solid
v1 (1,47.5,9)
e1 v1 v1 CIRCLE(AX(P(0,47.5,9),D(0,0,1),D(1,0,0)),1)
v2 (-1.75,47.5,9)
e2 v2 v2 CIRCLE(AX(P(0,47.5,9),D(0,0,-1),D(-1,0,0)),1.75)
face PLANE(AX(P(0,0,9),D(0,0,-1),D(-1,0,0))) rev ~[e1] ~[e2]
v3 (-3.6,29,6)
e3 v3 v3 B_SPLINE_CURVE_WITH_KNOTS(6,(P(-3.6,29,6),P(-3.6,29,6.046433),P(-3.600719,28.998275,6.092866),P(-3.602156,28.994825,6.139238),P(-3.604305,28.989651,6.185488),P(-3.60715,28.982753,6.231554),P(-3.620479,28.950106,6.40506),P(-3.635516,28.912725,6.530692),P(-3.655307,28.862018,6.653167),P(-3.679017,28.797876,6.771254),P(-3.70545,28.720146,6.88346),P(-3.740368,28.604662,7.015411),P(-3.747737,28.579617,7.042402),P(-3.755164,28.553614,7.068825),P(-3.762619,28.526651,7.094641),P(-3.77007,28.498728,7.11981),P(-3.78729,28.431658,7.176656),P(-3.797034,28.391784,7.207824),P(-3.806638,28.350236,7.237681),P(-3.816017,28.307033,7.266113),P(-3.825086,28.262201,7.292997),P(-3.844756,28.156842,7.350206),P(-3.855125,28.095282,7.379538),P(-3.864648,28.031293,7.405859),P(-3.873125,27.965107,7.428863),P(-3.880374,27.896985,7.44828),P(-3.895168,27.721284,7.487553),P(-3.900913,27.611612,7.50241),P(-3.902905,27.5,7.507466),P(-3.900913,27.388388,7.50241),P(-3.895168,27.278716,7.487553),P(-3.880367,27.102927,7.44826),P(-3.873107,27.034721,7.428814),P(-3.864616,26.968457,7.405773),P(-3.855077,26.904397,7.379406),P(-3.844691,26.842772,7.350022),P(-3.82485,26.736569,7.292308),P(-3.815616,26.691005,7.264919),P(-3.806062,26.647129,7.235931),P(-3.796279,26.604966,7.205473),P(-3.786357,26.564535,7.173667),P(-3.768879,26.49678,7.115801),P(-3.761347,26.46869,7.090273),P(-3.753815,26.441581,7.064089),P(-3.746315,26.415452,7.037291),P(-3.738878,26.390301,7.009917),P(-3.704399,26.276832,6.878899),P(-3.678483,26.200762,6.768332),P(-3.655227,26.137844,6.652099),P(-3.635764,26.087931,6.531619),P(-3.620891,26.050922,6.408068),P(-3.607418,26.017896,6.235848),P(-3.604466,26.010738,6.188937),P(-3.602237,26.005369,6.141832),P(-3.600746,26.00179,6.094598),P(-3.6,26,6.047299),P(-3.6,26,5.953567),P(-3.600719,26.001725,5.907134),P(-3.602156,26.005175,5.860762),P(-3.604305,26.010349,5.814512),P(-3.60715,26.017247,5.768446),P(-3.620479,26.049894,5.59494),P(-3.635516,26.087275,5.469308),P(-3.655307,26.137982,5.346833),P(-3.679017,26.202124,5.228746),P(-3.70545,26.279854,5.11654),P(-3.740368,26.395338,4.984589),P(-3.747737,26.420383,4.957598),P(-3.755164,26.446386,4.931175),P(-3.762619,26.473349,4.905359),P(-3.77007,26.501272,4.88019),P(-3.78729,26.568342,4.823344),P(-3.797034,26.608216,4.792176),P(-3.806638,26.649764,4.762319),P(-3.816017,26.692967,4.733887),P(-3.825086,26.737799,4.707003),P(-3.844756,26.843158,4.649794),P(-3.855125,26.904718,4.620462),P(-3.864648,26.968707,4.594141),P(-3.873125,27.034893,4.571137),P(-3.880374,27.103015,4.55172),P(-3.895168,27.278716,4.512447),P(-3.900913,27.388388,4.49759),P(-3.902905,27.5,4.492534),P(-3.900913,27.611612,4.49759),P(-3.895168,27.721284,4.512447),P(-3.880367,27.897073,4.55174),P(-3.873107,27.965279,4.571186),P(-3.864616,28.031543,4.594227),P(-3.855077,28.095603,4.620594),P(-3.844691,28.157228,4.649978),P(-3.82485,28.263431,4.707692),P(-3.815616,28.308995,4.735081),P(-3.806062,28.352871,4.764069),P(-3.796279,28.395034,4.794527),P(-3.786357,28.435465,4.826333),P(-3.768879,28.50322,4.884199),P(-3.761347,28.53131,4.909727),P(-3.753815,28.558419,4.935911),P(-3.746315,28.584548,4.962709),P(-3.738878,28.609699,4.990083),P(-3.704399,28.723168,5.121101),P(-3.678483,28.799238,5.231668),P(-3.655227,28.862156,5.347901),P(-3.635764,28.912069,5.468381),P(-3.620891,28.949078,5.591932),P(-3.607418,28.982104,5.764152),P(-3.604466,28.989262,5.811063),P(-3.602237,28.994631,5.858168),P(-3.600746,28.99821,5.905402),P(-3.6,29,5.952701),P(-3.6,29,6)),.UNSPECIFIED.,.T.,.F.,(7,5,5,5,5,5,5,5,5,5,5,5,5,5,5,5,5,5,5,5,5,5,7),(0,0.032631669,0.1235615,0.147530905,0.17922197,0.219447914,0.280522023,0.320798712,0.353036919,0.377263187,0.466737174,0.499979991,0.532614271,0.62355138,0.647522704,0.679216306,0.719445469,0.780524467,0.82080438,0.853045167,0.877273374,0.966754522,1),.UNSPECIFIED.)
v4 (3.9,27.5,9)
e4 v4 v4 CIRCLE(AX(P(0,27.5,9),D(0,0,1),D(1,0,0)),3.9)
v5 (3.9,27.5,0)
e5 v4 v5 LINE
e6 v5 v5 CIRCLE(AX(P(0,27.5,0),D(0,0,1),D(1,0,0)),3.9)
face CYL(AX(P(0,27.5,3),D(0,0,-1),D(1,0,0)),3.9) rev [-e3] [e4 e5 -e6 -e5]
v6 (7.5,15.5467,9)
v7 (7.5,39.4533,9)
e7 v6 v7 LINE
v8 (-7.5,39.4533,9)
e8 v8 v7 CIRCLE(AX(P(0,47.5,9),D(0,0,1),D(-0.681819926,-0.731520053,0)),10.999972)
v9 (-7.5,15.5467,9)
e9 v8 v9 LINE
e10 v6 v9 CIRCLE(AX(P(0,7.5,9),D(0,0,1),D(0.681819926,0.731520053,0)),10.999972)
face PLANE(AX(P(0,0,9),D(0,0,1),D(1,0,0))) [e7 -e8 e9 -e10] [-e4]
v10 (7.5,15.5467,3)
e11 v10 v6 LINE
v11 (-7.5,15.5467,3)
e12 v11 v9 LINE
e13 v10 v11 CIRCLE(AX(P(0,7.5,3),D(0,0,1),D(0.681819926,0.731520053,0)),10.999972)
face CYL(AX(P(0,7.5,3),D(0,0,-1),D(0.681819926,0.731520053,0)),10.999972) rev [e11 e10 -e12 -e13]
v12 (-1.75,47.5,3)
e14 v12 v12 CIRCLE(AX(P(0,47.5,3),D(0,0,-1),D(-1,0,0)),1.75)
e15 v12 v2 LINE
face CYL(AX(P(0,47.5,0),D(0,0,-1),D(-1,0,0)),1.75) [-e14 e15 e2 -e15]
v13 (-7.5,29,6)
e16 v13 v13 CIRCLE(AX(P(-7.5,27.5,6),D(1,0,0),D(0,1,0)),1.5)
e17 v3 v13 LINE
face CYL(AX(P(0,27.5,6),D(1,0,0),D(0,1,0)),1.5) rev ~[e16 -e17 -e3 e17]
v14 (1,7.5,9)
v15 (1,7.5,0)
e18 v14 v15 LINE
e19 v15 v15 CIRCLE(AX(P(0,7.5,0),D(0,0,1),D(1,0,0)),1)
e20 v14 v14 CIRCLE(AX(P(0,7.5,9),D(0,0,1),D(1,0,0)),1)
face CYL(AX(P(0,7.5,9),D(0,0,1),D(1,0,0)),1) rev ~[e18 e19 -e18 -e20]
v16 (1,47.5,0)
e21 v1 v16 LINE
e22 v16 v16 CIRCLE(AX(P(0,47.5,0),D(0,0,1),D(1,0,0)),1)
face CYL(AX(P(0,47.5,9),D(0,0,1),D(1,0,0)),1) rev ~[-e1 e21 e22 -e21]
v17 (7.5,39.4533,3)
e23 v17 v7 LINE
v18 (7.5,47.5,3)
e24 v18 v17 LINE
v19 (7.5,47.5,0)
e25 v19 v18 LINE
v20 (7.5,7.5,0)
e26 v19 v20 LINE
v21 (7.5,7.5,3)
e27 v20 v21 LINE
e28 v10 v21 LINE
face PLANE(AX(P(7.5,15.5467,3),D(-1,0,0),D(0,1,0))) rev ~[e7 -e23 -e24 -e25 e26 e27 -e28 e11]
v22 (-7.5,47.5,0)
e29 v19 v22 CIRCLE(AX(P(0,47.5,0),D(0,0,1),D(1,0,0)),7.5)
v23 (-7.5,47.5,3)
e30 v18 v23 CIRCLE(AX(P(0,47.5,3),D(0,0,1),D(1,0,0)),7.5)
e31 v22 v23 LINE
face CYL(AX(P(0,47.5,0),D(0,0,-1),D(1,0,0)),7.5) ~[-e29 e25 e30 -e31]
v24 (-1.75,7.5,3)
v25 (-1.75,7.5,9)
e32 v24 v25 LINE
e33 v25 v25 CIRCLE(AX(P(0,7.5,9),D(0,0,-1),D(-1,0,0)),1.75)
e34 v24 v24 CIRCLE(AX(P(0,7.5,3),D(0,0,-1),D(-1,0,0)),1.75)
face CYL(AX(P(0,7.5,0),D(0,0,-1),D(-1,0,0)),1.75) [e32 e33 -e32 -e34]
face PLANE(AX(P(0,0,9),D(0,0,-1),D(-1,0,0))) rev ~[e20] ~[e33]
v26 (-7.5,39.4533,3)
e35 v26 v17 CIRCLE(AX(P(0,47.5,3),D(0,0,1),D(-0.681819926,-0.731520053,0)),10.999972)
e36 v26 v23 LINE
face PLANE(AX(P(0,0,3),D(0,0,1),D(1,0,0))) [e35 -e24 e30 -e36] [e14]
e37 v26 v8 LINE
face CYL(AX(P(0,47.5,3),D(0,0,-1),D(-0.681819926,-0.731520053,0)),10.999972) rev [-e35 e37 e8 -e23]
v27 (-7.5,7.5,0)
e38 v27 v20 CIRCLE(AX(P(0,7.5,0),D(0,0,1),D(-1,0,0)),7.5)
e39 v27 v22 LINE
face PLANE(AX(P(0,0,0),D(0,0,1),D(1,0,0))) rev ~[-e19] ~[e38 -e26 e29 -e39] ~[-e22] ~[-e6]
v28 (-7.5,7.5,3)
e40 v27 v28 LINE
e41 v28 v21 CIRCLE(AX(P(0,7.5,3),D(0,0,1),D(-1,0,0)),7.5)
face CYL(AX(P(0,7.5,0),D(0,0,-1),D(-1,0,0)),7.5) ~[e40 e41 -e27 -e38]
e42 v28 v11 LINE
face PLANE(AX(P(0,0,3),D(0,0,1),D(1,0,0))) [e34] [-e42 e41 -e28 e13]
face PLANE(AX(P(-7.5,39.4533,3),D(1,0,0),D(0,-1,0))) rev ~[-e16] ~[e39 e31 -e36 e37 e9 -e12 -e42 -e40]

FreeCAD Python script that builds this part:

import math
import FreeCAD as App
import Part
import Sketcher
from FreeCAD import Vector
Q = App.Units.Quantity

doc = App.newDocument("Part")
body = doc.addObject("PartDesign::Body", "Body")

# Sketch on XY plane
sketch1 = doc.addObject("Sketcher::SketchObject", "Sketch")
body.addObject(sketch1)
sketch1.AttachmentSupport = (doc.XY_Plane, [""])
sketch1.MapMode = "FlatFace"
sketch1.addGeometry([
    Part.LineSegment(Vector(7.5, 7.5, 0), Vector(7.5, 47.5, 0)),  # 0
    Part.ArcOfCircle(Part.Circle(Vector(0, 47.5, 0), Vector(0, 0, 1), 7.5), math.radians(0), math.radians(180)),  # 1
    Part.LineSegment(Vector(-7.5, 47.5, 0), Vector(-7.5, 7.5, 0)),  # 2
    Part.ArcOfCircle(Part.Circle(Vector(0, 7.5, 0), Vector(0, 0, 1), 7.5), math.radians(180), math.radians(360)),  # 3
    Part.Circle(Vector(0, 7.5, 0), Vector(0, 0, 1), 1.8),  # 4
    Part.Circle(Vector(0, 27.5, 0), Vector(0, 0, 1), 3.9),  # 5
    Part.Circle(Vector(0, 47.5, 0), Vector(0, 0, 1), 1.8),  # 6
], False)
sketch1.addConstraint([
    Sketcher.Constraint("Tangent", 0, 2, 1, 1),
    Sketcher.Constraint("Tangent", 1, 2, 2, 1),
    Sketcher.Constraint("Tangent", 2, 2, 3, 1),
    Sketcher.Constraint("Tangent", 3, 2, 0, 1),
    Sketcher.Constraint("Vertical", 0),
    Sketcher.Constraint("Vertical", 2),
    Sketcher.Constraint("Coincident", 4, 3, 3, 3),
    Sketcher.Constraint("Coincident", 6, 3, 1, 3),
    Sketcher.Constraint("Equal", 4, 6),
    Sketcher.Constraint("PointOnObject", 1, 3, -2),
    Sketcher.Constraint("PointOnObject", 5, 3, -2),
    Sketcher.Constraint("Diameter", 4, Q("3.5 mm")),
    Sketcher.Constraint("Diameter", 5, Q("7.8 mm")),
    Sketcher.Constraint("Radius", 1, Q("7.5 mm")),
    Sketcher.Constraint("DistanceY", 0, 1, 0, 2, Q("40 mm")),
    Sketcher.Constraint("DistanceY", 5, 3, 1, 3, Q("20 mm")),
    Sketcher.Constraint("DistanceY", -1, 1, 1, 3, Q("47.5 mm")),
])
pad1 = doc.addObject("PartDesign::Pad", "Pad")
body.addObject(pad1)
pad1.Profile = sketch1
pad1.Length = 3

# Sketch on XY plane
sketch2 = doc.addObject("Sketcher::SketchObject", "Sketch001")
body.addObject(sketch2)
sketch2.AttachmentSupport = (doc.XY_Plane, [""])
sketch2.MapMode = "FlatFace"
sketch2.addGeometry([
    Part.Circle(Vector(0, 47.5, 0), Vector(0, 0, 1), 1.8),
    Part.Circle(Vector(0, 7.5, 0), Vector(0, 0, 1), 1.8),
], False)
sketch2.addConstraint([
    Sketcher.Constraint("Equal", 0, 1),
    Sketcher.Constraint("PointOnObject", 0, 3, -2),
    Sketcher.Constraint("PointOnObject", 1, 3, -2),
    Sketcher.Constraint("Diameter", 0, Q("3.5 mm")),
    Sketcher.Constraint("DistanceY", 1, 3, 0, 3, Q("40 mm")),
    Sketcher.Constraint("DistanceY", -1, 1, 0, 3, Q("47.5 mm")),
])
pad2 = doc.addObject("PartDesign::Pad", "Pad001")
body.addObject(pad2)
pad2.Profile = sketch2
pad2.Length = 9

# Sketch on XY plane
sketch3 = doc.addObject("Sketcher::SketchObject", "Sketch002")
body.addObject(sketch3)
sketch3.AttachmentSupport = (doc.XY_Plane, [""])
sketch3.MapMode = "FlatFace"
sketch3.AttachmentOffset = App.Placement(Vector(0, 0, 9), App.Rotation())
sketch3.addGeometry([
    Part.Circle(Vector(0, 47.5, 0), Vector(0, 0, 1), 1),
    Part.Circle(Vector(0, 7.5, 0), Vector(0, 0, 1), 1),
], False)
sketch3.addConstraint([
    Sketcher.Constraint("Equal", 0, 1),
    Sketcher.Constraint("PointOnObject", 0, 3, -2),
    Sketcher.Constraint("PointOnObject", 1, 3, -2),
    Sketcher.Constraint("Diameter", 0, Q("2 mm")),
    Sketcher.Constraint("DistanceY", 1, 3, 0, 3, Q("40 mm")),
    Sketcher.Constraint("DistanceY", -1, 1, 0, 3, Q("47.5 mm")),
])
pocket1 = doc.addObject("PartDesign::Pocket", "Pocket")
body.addObject(pocket1)
pocket1.Profile = sketch3
pocket1.Type = "ThroughAll"

# Sketch on XY plane
sketch4 = doc.addObject("Sketcher::SketchObject", "Sketch003")
body.addObject(sketch4)
sketch4.AttachmentSupport = (doc.XY_Plane, [""])
sketch4.MapMode = "FlatFace"
sketch4.AttachmentOffset = App.Placement(Vector(0, 0, 3), App.Rotation())
sketch4.addGeometry([
    Part.LineSegment(Vector(7.5, 15.5, 0), Vector(7.5, 39.5, 0)),  # 0
    Part.ArcOfCircle(Part.Circle(Vector(0, 47.5, 0), Vector(0, 0, 1), 11), math.radians(-133), math.radians(-47)),  # 1
    Part.LineSegment(Vector(-7.5, 39.5, 0), Vector(-7.5, 15.5, 0)),  # 2
    Part.ArcOfCircle(Part.Circle(Vector(0, 7.5, 0), Vector(0, 0, 1), 11), math.radians(47), math.radians(133)),  # 3
    Part.Circle(Vector(0, 27.5, 0), Vector(0, 0, 1), 3.9),  # 4
], False)
sketch4.addConstraint([
    Sketcher.Constraint("Coincident", 0, 2, 1, 2),
    Sketcher.Constraint("Coincident", 1, 1, 2, 1),
    Sketcher.Constraint("Coincident", 2, 2, 3, 2),
    Sketcher.Constraint("Coincident", 3, 1, 0, 1),
    Sketcher.Constraint("Vertical", 0),
    Sketcher.Constraint("Vertical", 2),
    Sketcher.Constraint("Equal", 1, 3),
    Sketcher.Constraint("Symmetric", 0, 2, 1, 1, -2),
    Sketcher.Constraint("PointOnObject", 3, 3, -2),
    Sketcher.Constraint("PointOnObject", 4, 3, -2),
    Sketcher.Constraint("Radius", 1, Q("11 mm")),
    Sketcher.Constraint("Diameter", 4, Q("7.8 mm")),
    Sketcher.Constraint("DistanceY", 3, 3, 1, 3, Q("40 mm")),
    Sketcher.Constraint("DistanceY", 4, 3, 1, 3, Q("20 mm")),
    Sketcher.Constraint("DistanceX", 1, 1, 0, 2, Q("15 mm")),
    Sketcher.Constraint("DistanceY", -1, 1, 1, 3, Q("47.5 mm")),
])
pad3 = doc.addObject("PartDesign::Pad", "Pad002")
body.addObject(pad3)
pad3.Profile = sketch4
pad3.Length = 6

# Sketch on YZ plane
sketch5 = doc.addObject("Sketcher::SketchObject", "Sketch004")
body.addObject(sketch5)
sketch5.AttachmentSupport = (doc.YZ_Plane, [""])
sketch5.MapMode = "FlatFace"
sketch5.addGeometry(Part.Circle(Vector(27.5, 6, 0), Vector(0, 0, 1), 1.5), False)
sketch5.addConstraint([
    Sketcher.Constraint("Diameter", 0, Q("3 mm")),
    Sketcher.Constraint("DistanceY", -1, 1, 0, 3, Q("6 mm")),
    Sketcher.Constraint("DistanceX", -1, 1, 0, 3, Q("27.5 mm")),
])
pocket2 = doc.addObject("PartDesign::Pocket", "Pocket001")
body.addObject(pocket2)
pocket2.Profile = sketch5
pocket2.Type = "ThroughAll"

doc.recompute()
